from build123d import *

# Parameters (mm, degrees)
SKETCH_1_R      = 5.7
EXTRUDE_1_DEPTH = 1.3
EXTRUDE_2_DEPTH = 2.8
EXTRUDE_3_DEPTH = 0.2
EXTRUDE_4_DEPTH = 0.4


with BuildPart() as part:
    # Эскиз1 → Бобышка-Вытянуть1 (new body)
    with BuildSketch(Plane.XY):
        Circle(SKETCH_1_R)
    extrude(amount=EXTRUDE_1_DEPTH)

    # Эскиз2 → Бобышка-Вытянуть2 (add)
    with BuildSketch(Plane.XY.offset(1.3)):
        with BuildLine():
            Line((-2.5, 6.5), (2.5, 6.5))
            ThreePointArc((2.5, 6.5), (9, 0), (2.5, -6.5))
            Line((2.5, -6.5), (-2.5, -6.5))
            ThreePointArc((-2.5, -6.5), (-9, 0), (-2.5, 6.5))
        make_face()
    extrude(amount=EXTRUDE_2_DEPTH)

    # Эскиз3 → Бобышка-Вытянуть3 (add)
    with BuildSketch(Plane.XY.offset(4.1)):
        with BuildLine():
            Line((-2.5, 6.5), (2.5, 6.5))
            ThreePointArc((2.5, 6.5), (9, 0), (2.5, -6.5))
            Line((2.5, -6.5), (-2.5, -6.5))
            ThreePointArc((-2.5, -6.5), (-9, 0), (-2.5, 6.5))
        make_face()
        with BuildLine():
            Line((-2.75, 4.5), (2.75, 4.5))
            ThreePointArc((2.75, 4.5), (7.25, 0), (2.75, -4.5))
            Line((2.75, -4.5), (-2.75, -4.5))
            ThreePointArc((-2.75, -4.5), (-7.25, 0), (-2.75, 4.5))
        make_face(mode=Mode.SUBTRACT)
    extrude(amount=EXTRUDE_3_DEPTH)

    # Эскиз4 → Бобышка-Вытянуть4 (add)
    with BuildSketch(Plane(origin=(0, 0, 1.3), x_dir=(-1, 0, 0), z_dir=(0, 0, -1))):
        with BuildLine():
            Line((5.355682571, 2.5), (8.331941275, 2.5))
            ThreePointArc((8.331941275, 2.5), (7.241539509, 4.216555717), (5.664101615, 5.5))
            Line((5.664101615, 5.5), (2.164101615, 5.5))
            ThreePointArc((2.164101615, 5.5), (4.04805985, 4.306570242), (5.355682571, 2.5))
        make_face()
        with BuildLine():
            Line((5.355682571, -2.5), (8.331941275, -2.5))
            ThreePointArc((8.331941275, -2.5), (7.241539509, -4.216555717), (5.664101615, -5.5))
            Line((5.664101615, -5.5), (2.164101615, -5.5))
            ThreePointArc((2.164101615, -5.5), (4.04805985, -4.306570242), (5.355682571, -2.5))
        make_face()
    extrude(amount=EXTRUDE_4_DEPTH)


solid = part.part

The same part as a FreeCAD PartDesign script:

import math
import FreeCAD as App
import Part
import Sketcher

V = App.Vector
Q = App.Units.Quantity

doc = App.newDocument("Part")
body = doc.addObject("PartDesign::Body", "Body")

# Sketch on XY plane
sketch1 = body.newObject("Sketcher::SketchObject", "Sketch")
sketch1.AttachmentSupport = (doc.getObject("XY_Plane"), [""])
sketch1.MapMode = "FlatFace"
sketch1.addGeometry(Part.Circle(V(0, 0, 0), V(0, 0, 1), 5.7), False)
sketch1.addConstraint([
    Sketcher.Constraint("Coincident", 0, 3, -1, 1),
    Sketcher.Constraint("Diameter", 0, Q("11.4 mm")),
])
pad1 = body.newObject("PartDesign::Pad", "Pad")
pad1.Profile = sketch1
pad1.Length = 1.3

# Sketch on XY plane
sketch2 = body.newObject("Sketcher::SketchObject", "Sketch001")
sketch2.AttachmentSupport = (doc.getObject("XY_Plane"), [""])
sketch2.MapMode = "FlatFace"
sketch2.AttachmentOffset = App.Placement(V(0, 0, 1.3), App.Rotation())
sketch2.addGeometry([
    Part.LineSegment(V(2.5, 6.5, 0), V(-2.5, 6.5, 0)),
    Part.ArcOfCircle(Part.Circle(V(-2.5, 0, 0), V(0, 0, 1), 6.5), math.radians(90), math.radians(270)),
    Part.LineSegment(V(-2.5, -6.5, 0), V(2.5, -6.5, 0)),
    Part.ArcOfCircle(Part.Circle(V(2.5, 0, 0), V(0, 0, 1), 6.5), math.radians(-90), math.radians(90)),
], False)
sketch2.addConstraint([
    Sketcher.Constraint("Tangent", 0, 2, 1, 1),
    Sketcher.Constraint("Tangent", 1, 2, 2, 1),
    Sketcher.Constraint("Tangent", 2, 2, 3, 1),
    Sketcher.Constraint("Tangent", 3, 2, 0, 1),
    Sketcher.Constraint("Horizontal", 0),
    Sketcher.Constraint("Horizontal", 2),
    Sketcher.Constraint("Symmetric", 1, 3, 3, 3, -1, 1),
    Sketcher.Constraint("Radius", 1, Q("6.5 mm")),
    Sketcher.Constraint("DistanceX", 0, 2, 0, 1, Q("5 mm")),
])
pad2 = body.newObject("PartDesign::Pad", "Pad001")
pad2.Profile = sketch2
pad2.Length = 2.8

# Sketch on XY plane
sketch3 = body.newObject("Sketcher::SketchObject", "Sketch002")
sketch3.AttachmentSupport = (doc.getObject("XY_Plane"), [""])
sketch3.MapMode = "FlatFace"
sketch3.AttachmentOffset = App.Placement(V(0, 0, 4.1), App.Rotation())
sketch3.addGeometry([
    Part.LineSegment(V(2.5, 6.5, 0), V(-2.5, 6.5, 0)),  # 0
    Part.ArcOfCircle(Part.Circle(V(-2.5, 0, 0), V(0, 0, 1), 6.5), math.radians(90), math.radians(270)),  # 1
    Part.LineSegment(V(-2.5, -6.5, 0), V(2.5, -6.5, 0)),  # 2
    Part.ArcOfCircle(Part.Circle(V(2.5, 0, 0), V(0, 0, 1), 6.5), math.radians(-90), math.radians(90)),  # 3
    Part.LineSegment(V(-2.75, 4.5, 0), V(2.75, 4.5, 0)),  # 4
    Part.ArcOfCircle(Part.Circle(V(2.75, 0, 0), V(0, 0, 1), 4.5), math.radians(-90), math.radians(90)),  # 5
    Part.LineSegment(V(2.75, -4.5, 0), V(-2.75, -4.5, 0)),  # 6
    Part.ArcOfCircle(Part.Circle(V(-2.75, 0, 0), V(0, 0, 1), 4.5), math.radians(90), math.radians(270)),  # 7
], False)
sketch3.addConstraint([
    Sketcher.Constraint("Tangent", 0, 2, 1, 1),
    Sketcher.Constraint("Tangent", 1, 2, 2, 1),
    Sketcher.Constraint("Tangent", 2, 2, 3, 1),
    Sketcher.Constraint("Tangent", 3, 2, 0, 1),
    Sketcher.Constraint("Tangent", 4, 2, 5, 2),
    Sketcher.Constraint("Tangent", 5, 1, 6, 1),
    Sketcher.Constraint("Tangent", 6, 2, 7, 2),
    Sketcher.Constraint("Tangent", 7, 1, 4, 1),
    Sketcher.Constraint("Horizontal", 0),
    Sketcher.Constraint("Horizontal", 2),
    Sketcher.Constraint("Horizontal", 4),
    Sketcher.Constraint("Horizontal", 6),
    Sketcher.Constraint("Symmetric", 1, 3, 3, 3, -1, 1),
    Sketcher.Constraint("Symmetric", 5, 3, 7, 3, -1, 1),
    Sketcher.Constraint("Radius", 1, Q("6.5 mm")),
    Sketcher.Constraint("Radius", 5, Q("4.5 mm")),
    Sketcher.Constraint("DistanceX", 0, 2, 0, 1, Q("5 mm")),
    Sketcher.Constraint("DistanceX", 4, 1, 4, 2, Q("5.5 mm")),
])
pad3 = body.newObject("PartDesign::Pad", "Pad002")
pad3.Profile = sketch3
pad3.Length = 0.2

# Sketch on XY plane
sketch4 = body.newObject("Sketcher::SketchObject", "Sketch003")
sketch4.AttachmentSupport = (doc.getObject("XY_Plane"), [""])
sketch4.MapMode = "FlatFace"
sketch4.AttachmentOffset = App.Placement(V(0, 0, 1.3), App.Rotation())
sketch4.addGeometry([
    Part.LineSegment(V(-5.355683, 2.5, 0), V(-8.331941, 2.5, 0)),  # 0
    Part.ArcOfCircle(Part.Circle(V(-2.5, 0, 0), V(0, 0, 1), 6.345198), math.radians(119.911439), math.radians(156.796458)),  # 1
    Part.LineSegment(V(-5.664102, 5.5, 0), V(-2.164102, 5.5, 0)),  # 2
    Part.ArcOfCircle(Part.Circle(V(0, 0, 0), V(0, 0, 1), 5.910443), math.radians(111.478299), math.radians(154.97712)),  # 3
    Part.LineSegment(V(-8.331941, -2.5, 0), V(-5.355683, -2.5, 0)),  # 4
    Part.ArcOfCircle(Part.Circle(V(0, 0, 0), V(0, 0, 1), 5.910443), math.radians(-154.97712), math.radians(-111.478299)),  # 5
    Part.LineSegment(V(-2.164102, -5.5, 0), V(-5.664102, -5.5, 0)),  # 6
    Part.ArcOfCircle(Part.Circle(V(-2.5, 0, 0), V(0, 0, 1), 6.345198), math.radians(-156.796458), math.radians(-119.911439)),  # 7
], False)
sketch4.addConstraint([
    Sketcher.Constraint("Coincident", 0, 2, 1, 2),
    Sketcher.Constraint("Coincident", 1, 1, 2, 1),
    Sketcher.Constraint("Coincident", 2, 2, 3, 1),
    Sketcher.Constraint("Coincident", 3, 2, 0, 1),
    Sketcher.Constraint("Coincident", 4, 2, 5, 1),
    Sketcher.Constraint("Coincident", 5, 2, 6, 1),
    Sketcher.Constraint("Coincident", 6, 2, 7, 2),
    Sketcher.Constraint("Coincident", 7, 1, 4, 1),
    Sketcher.Constraint("Horizontal", 0),
    Sketcher.Constraint("Horizontal", 2),
    Sketcher.Constraint("Horizontal", 4),
    Sketcher.Constraint("Horizontal", 6),
    Sketcher.Constraint("Coincident", 3, 3, -1, 1),
    Sketcher.Constraint("Coincident", 5, 3, -1, 1),
    Sketcher.Constraint("Coincident", 7, 3, 1, 3),
    Sketcher.Constraint("Equal", 3, 5),
    Sketcher.Constraint("Equal", 1, 7),
    Sketcher.Constraint("Symmetric", 1, 1, 6, 2, -1),
    Sketcher.Constraint("Vertical", 3, 2, 4, 2),
    Sketcher.Constraint("DistanceX", 2, 1, 2, 2, Q("3.5 mm")),
    Sketcher.Constraint("DistanceY", 0, 2, 1, 1, Q("3 mm")),
    Sketcher.Constraint("DistanceY", 4, 2, 3, 2, Q("5 mm")),
    Sketcher.Constraint("DistanceX", 1, 3, -1, 1, Q("2.5 mm")),
    Sketcher.Constraint("Radius", 1, Q("6.345198 mm")),
])
pad4 = body.newObject("PartDesign::Pad", "Pad003")
pad4.Profile = sketch4
pad4.Length = 0.4
pad4.Reversed = True

doc.recompute()
